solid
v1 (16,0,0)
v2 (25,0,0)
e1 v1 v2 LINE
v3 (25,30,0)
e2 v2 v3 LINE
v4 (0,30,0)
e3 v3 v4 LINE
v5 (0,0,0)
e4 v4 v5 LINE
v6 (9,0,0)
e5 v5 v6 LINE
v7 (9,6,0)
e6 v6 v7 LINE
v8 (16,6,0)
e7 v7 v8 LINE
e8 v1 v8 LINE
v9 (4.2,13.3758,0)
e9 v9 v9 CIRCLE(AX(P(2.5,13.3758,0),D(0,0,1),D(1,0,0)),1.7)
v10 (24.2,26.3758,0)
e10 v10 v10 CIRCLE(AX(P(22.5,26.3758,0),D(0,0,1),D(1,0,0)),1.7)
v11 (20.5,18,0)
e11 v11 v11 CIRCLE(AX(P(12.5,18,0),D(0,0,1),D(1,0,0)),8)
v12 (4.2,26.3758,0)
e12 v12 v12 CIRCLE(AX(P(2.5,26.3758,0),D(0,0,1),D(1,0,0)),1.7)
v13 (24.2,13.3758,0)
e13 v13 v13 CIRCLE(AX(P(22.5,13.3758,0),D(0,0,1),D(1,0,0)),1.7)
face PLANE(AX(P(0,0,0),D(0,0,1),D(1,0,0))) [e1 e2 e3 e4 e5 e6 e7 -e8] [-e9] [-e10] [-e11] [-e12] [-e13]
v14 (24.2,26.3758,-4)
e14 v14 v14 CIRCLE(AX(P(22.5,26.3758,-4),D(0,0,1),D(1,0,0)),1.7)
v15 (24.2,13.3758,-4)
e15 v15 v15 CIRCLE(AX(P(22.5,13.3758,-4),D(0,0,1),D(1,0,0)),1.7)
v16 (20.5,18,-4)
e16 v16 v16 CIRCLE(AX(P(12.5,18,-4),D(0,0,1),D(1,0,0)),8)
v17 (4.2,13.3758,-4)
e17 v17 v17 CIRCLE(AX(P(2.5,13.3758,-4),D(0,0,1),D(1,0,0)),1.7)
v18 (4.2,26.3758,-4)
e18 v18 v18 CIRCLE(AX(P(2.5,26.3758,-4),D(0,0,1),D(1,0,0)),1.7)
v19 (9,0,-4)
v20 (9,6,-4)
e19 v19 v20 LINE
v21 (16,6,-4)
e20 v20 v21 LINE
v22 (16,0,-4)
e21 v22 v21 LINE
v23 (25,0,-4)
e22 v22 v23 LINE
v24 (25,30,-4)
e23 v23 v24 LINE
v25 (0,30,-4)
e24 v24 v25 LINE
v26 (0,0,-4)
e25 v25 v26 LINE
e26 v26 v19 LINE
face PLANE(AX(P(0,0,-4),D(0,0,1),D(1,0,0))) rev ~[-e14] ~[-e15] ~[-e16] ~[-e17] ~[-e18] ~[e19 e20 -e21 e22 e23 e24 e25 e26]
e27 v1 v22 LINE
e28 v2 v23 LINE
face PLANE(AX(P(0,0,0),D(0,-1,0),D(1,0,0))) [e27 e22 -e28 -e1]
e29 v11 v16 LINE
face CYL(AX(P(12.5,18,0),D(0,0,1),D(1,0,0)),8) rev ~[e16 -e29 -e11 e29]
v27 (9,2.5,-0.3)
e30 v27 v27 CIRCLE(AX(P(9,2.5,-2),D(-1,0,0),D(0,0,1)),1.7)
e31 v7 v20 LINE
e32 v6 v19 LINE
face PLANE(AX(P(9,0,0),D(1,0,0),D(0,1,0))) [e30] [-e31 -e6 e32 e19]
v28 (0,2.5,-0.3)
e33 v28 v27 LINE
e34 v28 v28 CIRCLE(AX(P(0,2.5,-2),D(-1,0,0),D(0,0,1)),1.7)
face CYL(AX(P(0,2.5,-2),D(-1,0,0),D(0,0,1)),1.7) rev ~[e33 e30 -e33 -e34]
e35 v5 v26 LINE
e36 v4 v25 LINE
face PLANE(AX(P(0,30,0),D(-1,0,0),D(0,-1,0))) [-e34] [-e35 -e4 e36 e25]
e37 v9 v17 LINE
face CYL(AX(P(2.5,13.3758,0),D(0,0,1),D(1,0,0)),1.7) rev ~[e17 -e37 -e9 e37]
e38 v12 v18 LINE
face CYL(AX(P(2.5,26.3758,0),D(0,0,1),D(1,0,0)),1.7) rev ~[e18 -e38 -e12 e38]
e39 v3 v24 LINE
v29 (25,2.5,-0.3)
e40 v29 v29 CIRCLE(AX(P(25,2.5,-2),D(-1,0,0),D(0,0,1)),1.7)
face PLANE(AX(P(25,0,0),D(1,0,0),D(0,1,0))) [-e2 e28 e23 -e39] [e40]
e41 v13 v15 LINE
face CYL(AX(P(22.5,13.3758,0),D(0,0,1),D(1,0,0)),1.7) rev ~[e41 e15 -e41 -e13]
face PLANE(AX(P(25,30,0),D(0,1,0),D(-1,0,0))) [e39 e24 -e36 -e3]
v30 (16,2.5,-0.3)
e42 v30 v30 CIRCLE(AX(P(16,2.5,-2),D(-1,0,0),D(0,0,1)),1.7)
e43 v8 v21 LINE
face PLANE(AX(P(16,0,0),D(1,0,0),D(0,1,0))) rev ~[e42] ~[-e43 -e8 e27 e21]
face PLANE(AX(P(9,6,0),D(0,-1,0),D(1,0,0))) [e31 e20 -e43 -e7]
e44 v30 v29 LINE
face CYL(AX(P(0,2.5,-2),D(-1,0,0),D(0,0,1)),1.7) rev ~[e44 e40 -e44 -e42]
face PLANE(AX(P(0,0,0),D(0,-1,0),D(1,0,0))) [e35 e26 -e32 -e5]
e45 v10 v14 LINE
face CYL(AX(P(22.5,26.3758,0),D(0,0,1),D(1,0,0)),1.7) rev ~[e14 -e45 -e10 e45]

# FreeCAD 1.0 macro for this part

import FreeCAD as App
import Part
import Sketcher
Q = App.Units.Quantity

doc = App.newDocument("Part")
params = doc.addObject("Spreadsheet::Sheet", "Params")
for row, (alias, value) in enumerate([
    ("sketch1_width", "25 mm"),
    ("sketch1_height", "30 mm"),
    ("pad1_length", "4 mm"),
    ("sketch2_diameter", "16 mm"),
    ("pocket1_length", "10 mm"),
    ("sketch3_diameter", "3.4 mm"),
    ("pocket2_length", "10 mm"),
    ("sketch4_height", "6 mm"),
    ("sketch4_width", "7 mm"),
    ("pocket3_length", "10 mm"),
    ("sketch5_diameter", "3.4 mm"),
    ("pocket4_length", "40 mm"),
], start=1):
    params.set(f"A{row}", alias)
    params.set(f"B{row}", "=" + value)
    params.setAlias(f"B{row}", alias)

body = doc.addObject("PartDesign::Body", "Body")

# Sketch on XY plane
sketch1 = body.newObject("Sketcher::SketchObject", "Sketch")
sketch1.AttachmentSupport = (doc.getObject("XY_Plane"), [""])
sketch1.MapMode = "FlatFace"
sketch1.addGeometry([
    Part.LineSegment(App.Vector(0, 30, 0), App.Vector(0, 0, 0)),
    Part.LineSegment(App.Vector(0, 0, 0), App.Vector(25, 0, 0)),
    Part.LineSegment(App.Vector(25, 0, 0), App.Vector(25, 30, 0)),
    Part.LineSegment(App.Vector(25, 30, 0), App.Vector(0, 30, 0)),
], False)
sketch1.addConstraint([
    Sketcher.Constraint("Coincident", 0, 2, 1, 1),
    Sketcher.Constraint("Coincident", 1, 2, 2, 1),
    Sketcher.Constraint("Coincident", 2, 2, 3, 1),
    Sketcher.Constraint("Coincident", 3, 2, 0, 1),
    Sketcher.Constraint("Vertical", 0),
    Sketcher.Constraint("Horizontal", 1),
    Sketcher.Constraint("Vertical", 2),
    Sketcher.Constraint("Horizontal", 3),
    Sketcher.Constraint("Coincident", 0, 2, -1, 1),
    Sketcher.Constraint("DistanceX", 1, 1, 1, 2, Q("25 mm")),
    Sketcher.Constraint("DistanceY", 0, 2, 0, 1, Q("30 mm")),
])
sketch1.setExpression("Constraints[9]", "Params.sketch1_width")
sketch1.setExpression("Constraints[10]", "Params.sketch1_height")
pad1 = body.newObject("PartDesign::Pad", "Pad")
pad1.Profile = sketch1
pad1.setExpression("Length", "Params.pad1_length")
pad1.Reversed = True

# Sketch on XY plane
sketch2 = body.newObject("Sketcher::SketchObject", "Sketch001")
sketch2.AttachmentSupport = (doc.getObject("XY_Plane"), [""])
sketch2.MapMode = "FlatFace"
sketch2.addGeometry(Part.Circle(App.Vector(12, 18, 0), App.Vector(0, 0, 1), 8), False)
sketch2.addConstraint([
    Sketcher.Constraint("Diameter", 0, Q("16 mm")),
    Sketcher.Constraint("DistanceY", -1, 1, 0, 3, Q("18 mm")),
    Sketcher.Constraint("DistanceX", -1, 1, 0, 3, Q("12.5 mm")),
])
sketch2.setExpression("Constraints[0]", "Params.sketch2_diameter")
pocket1 = body.newObject("PartDesign::Pocket", "Pocket")
pocket1.Profile = sketch2
pocket1.setExpression("Length", "Params.pocket1_length")

# Sketch on XY plane
sketch3 = body.newObject("Sketcher::SketchObject", "Sketch002")
sketch3.AttachmentSupport = (doc.getObject("XY_Plane"), [""])
sketch3.MapMode = "FlatFace"
sketch3.addGeometry([
    Part.Circle(App.Vector(2.5, 26.4, 0), App.Vector(0, 0, 1), 1.7),
    Part.Circle(App.Vector(22.5, 26.4, 0), App.Vector(0, 0, 1), 1.7),
    Part.Circle(App.Vector(22.5, 13.4, 0), App.Vector(0, 0, 1), 1.7),
    Part.Circle(App.Vector(2.5, 13.4, 0), App.Vector(0, 0, 1), 1.7),
], False)
sketch3.addConstraint([
    Sketcher.Constraint("Equal", 0, 1),
    Sketcher.Constraint("Equal", 1, 2),
    Sketcher.Constraint("Equal", 2, 3),
    Sketcher.Constraint("Horizontal", 0, 3, 1, 3),
    Sketcher.Constraint("Horizontal", 2, 3, 3, 3),
    Sketcher.Constraint("Vertical", 1, 3, 2, 3),
    Sketcher.Constraint("Vertical", 0, 3, 3, 3),
    Sketcher.Constraint("Diameter", 0, Q("3.4 mm")),
    Sketcher.Constraint("DistanceX", 0, 3, 1, 3, Q("20 mm")),
    Sketcher.Constraint("DistanceY", 2, 3, 1, 3, Q("13 mm")),
    Sketcher.Constraint("DistanceX", -1, 1, 0, 3, Q("2.5 mm")),
    Sketcher.Constraint("DistanceY", -1, 1, 0, 3, Q("26.3758 mm")),
])
sketch3.setExpression("Constraints[7]", "Params.sketch3_diameter")
pocket2 = body.newObject("PartDesign::Pocket", "Pocket001")
pocket2.Profile = sketch3
pocket2.setExpression("Length", "Params.pocket2_length")

# Sketch on XY plane
sketch4 = body.newObject("Sketcher::SketchObject", "Sketch003")
sketch4.AttachmentSupport = (doc.getObject("XY_Plane"), [""])
sketch4.MapMode = "FlatFace"
sketch4.addGeometry([
    Part.LineSegment(App.Vector(9, 0, 0), App.Vector(16, 0, 0)),
    Part.LineSegment(App.Vector(16, 0, 0), App.Vector(16, 6, 0)),
    Part.LineSegment(App.Vector(16, 6, 0), App.Vector(9, 6, 0)),
    Part.LineSegment(App.Vector(9, 6, 0), App.Vector(9, 0, 0)),
], False)
sketch4.addConstraint([
    Sketcher.Constraint("Coincident", 0, 2, 1, 1),
    Sketcher.Constraint("Coincident", 1, 2, 2, 1),
    Sketcher.Constraint("Coincident", 2, 2, 3, 1),
    Sketcher.Constraint("Coincident", 3, 2, 0, 1),
    Sketcher.Constraint("Horizontal", 0),
    Sketcher.Constraint("Vertical", 1),
    Sketcher.Constraint("Horizontal", 2),
    Sketcher.Constraint("Vertical", 3),
    Sketcher.Constraint("PointOnObject", 0, 2, -1),
    Sketcher.Constraint("DistanceY", 1, 1, 1, 2, Q("6 mm")),
    Sketcher.Constraint("DistanceX", -1, 1, 2, 2, Q("9 mm")),
    Sketcher.Constraint("DistanceX", 0, 1, 0, 2, Q("7 mm")),
])
sketch4.setExpression("Constraints[9]", "Params.sketch4_height")
sketch4.setExpression("Constraints[11]", "Params.sketch4_width")
pocket3 = body.newObject("PartDesign::Pocket", "Pocket002")
pocket3.Profile = sketch4
pocket3.setExpression("Length", "Params.pocket3_length")

# Sketch on YZ plane
sketch5 = body.newObject("Sketcher::SketchObject", "Sketch004")
sketch5.AttachmentSupport = (doc.getObject("YZ_Plane"), [""])
sketch5.MapMode = "FlatFace"
sketch5.addGeometry(Part.Circle(App.Vector(2.5, -2, 0), App.Vector(0, 0, 1), 1.7), False)
sketch5.addConstraint([
    Sketcher.Constraint("Diameter", 0, Q("3.4 mm")),
    Sketcher.Constraint("DistanceY", 0, 3, -1, 1, Q("2 mm")),
    Sketcher.Constraint("DistanceX", -1, 1, 0, 3, Q("2.5 mm")),
])
sketch5.setExpression("Constraints[0]", "Params.sketch5_diameter")
pocket4 = body.newObject("PartDesign::Pocket", "Pocket003")
pocket4.Profile = sketch5
pocket4.setExpression("Length", "Params.pocket4_length")
pocket4.Reversed = True

doc.recompute()
